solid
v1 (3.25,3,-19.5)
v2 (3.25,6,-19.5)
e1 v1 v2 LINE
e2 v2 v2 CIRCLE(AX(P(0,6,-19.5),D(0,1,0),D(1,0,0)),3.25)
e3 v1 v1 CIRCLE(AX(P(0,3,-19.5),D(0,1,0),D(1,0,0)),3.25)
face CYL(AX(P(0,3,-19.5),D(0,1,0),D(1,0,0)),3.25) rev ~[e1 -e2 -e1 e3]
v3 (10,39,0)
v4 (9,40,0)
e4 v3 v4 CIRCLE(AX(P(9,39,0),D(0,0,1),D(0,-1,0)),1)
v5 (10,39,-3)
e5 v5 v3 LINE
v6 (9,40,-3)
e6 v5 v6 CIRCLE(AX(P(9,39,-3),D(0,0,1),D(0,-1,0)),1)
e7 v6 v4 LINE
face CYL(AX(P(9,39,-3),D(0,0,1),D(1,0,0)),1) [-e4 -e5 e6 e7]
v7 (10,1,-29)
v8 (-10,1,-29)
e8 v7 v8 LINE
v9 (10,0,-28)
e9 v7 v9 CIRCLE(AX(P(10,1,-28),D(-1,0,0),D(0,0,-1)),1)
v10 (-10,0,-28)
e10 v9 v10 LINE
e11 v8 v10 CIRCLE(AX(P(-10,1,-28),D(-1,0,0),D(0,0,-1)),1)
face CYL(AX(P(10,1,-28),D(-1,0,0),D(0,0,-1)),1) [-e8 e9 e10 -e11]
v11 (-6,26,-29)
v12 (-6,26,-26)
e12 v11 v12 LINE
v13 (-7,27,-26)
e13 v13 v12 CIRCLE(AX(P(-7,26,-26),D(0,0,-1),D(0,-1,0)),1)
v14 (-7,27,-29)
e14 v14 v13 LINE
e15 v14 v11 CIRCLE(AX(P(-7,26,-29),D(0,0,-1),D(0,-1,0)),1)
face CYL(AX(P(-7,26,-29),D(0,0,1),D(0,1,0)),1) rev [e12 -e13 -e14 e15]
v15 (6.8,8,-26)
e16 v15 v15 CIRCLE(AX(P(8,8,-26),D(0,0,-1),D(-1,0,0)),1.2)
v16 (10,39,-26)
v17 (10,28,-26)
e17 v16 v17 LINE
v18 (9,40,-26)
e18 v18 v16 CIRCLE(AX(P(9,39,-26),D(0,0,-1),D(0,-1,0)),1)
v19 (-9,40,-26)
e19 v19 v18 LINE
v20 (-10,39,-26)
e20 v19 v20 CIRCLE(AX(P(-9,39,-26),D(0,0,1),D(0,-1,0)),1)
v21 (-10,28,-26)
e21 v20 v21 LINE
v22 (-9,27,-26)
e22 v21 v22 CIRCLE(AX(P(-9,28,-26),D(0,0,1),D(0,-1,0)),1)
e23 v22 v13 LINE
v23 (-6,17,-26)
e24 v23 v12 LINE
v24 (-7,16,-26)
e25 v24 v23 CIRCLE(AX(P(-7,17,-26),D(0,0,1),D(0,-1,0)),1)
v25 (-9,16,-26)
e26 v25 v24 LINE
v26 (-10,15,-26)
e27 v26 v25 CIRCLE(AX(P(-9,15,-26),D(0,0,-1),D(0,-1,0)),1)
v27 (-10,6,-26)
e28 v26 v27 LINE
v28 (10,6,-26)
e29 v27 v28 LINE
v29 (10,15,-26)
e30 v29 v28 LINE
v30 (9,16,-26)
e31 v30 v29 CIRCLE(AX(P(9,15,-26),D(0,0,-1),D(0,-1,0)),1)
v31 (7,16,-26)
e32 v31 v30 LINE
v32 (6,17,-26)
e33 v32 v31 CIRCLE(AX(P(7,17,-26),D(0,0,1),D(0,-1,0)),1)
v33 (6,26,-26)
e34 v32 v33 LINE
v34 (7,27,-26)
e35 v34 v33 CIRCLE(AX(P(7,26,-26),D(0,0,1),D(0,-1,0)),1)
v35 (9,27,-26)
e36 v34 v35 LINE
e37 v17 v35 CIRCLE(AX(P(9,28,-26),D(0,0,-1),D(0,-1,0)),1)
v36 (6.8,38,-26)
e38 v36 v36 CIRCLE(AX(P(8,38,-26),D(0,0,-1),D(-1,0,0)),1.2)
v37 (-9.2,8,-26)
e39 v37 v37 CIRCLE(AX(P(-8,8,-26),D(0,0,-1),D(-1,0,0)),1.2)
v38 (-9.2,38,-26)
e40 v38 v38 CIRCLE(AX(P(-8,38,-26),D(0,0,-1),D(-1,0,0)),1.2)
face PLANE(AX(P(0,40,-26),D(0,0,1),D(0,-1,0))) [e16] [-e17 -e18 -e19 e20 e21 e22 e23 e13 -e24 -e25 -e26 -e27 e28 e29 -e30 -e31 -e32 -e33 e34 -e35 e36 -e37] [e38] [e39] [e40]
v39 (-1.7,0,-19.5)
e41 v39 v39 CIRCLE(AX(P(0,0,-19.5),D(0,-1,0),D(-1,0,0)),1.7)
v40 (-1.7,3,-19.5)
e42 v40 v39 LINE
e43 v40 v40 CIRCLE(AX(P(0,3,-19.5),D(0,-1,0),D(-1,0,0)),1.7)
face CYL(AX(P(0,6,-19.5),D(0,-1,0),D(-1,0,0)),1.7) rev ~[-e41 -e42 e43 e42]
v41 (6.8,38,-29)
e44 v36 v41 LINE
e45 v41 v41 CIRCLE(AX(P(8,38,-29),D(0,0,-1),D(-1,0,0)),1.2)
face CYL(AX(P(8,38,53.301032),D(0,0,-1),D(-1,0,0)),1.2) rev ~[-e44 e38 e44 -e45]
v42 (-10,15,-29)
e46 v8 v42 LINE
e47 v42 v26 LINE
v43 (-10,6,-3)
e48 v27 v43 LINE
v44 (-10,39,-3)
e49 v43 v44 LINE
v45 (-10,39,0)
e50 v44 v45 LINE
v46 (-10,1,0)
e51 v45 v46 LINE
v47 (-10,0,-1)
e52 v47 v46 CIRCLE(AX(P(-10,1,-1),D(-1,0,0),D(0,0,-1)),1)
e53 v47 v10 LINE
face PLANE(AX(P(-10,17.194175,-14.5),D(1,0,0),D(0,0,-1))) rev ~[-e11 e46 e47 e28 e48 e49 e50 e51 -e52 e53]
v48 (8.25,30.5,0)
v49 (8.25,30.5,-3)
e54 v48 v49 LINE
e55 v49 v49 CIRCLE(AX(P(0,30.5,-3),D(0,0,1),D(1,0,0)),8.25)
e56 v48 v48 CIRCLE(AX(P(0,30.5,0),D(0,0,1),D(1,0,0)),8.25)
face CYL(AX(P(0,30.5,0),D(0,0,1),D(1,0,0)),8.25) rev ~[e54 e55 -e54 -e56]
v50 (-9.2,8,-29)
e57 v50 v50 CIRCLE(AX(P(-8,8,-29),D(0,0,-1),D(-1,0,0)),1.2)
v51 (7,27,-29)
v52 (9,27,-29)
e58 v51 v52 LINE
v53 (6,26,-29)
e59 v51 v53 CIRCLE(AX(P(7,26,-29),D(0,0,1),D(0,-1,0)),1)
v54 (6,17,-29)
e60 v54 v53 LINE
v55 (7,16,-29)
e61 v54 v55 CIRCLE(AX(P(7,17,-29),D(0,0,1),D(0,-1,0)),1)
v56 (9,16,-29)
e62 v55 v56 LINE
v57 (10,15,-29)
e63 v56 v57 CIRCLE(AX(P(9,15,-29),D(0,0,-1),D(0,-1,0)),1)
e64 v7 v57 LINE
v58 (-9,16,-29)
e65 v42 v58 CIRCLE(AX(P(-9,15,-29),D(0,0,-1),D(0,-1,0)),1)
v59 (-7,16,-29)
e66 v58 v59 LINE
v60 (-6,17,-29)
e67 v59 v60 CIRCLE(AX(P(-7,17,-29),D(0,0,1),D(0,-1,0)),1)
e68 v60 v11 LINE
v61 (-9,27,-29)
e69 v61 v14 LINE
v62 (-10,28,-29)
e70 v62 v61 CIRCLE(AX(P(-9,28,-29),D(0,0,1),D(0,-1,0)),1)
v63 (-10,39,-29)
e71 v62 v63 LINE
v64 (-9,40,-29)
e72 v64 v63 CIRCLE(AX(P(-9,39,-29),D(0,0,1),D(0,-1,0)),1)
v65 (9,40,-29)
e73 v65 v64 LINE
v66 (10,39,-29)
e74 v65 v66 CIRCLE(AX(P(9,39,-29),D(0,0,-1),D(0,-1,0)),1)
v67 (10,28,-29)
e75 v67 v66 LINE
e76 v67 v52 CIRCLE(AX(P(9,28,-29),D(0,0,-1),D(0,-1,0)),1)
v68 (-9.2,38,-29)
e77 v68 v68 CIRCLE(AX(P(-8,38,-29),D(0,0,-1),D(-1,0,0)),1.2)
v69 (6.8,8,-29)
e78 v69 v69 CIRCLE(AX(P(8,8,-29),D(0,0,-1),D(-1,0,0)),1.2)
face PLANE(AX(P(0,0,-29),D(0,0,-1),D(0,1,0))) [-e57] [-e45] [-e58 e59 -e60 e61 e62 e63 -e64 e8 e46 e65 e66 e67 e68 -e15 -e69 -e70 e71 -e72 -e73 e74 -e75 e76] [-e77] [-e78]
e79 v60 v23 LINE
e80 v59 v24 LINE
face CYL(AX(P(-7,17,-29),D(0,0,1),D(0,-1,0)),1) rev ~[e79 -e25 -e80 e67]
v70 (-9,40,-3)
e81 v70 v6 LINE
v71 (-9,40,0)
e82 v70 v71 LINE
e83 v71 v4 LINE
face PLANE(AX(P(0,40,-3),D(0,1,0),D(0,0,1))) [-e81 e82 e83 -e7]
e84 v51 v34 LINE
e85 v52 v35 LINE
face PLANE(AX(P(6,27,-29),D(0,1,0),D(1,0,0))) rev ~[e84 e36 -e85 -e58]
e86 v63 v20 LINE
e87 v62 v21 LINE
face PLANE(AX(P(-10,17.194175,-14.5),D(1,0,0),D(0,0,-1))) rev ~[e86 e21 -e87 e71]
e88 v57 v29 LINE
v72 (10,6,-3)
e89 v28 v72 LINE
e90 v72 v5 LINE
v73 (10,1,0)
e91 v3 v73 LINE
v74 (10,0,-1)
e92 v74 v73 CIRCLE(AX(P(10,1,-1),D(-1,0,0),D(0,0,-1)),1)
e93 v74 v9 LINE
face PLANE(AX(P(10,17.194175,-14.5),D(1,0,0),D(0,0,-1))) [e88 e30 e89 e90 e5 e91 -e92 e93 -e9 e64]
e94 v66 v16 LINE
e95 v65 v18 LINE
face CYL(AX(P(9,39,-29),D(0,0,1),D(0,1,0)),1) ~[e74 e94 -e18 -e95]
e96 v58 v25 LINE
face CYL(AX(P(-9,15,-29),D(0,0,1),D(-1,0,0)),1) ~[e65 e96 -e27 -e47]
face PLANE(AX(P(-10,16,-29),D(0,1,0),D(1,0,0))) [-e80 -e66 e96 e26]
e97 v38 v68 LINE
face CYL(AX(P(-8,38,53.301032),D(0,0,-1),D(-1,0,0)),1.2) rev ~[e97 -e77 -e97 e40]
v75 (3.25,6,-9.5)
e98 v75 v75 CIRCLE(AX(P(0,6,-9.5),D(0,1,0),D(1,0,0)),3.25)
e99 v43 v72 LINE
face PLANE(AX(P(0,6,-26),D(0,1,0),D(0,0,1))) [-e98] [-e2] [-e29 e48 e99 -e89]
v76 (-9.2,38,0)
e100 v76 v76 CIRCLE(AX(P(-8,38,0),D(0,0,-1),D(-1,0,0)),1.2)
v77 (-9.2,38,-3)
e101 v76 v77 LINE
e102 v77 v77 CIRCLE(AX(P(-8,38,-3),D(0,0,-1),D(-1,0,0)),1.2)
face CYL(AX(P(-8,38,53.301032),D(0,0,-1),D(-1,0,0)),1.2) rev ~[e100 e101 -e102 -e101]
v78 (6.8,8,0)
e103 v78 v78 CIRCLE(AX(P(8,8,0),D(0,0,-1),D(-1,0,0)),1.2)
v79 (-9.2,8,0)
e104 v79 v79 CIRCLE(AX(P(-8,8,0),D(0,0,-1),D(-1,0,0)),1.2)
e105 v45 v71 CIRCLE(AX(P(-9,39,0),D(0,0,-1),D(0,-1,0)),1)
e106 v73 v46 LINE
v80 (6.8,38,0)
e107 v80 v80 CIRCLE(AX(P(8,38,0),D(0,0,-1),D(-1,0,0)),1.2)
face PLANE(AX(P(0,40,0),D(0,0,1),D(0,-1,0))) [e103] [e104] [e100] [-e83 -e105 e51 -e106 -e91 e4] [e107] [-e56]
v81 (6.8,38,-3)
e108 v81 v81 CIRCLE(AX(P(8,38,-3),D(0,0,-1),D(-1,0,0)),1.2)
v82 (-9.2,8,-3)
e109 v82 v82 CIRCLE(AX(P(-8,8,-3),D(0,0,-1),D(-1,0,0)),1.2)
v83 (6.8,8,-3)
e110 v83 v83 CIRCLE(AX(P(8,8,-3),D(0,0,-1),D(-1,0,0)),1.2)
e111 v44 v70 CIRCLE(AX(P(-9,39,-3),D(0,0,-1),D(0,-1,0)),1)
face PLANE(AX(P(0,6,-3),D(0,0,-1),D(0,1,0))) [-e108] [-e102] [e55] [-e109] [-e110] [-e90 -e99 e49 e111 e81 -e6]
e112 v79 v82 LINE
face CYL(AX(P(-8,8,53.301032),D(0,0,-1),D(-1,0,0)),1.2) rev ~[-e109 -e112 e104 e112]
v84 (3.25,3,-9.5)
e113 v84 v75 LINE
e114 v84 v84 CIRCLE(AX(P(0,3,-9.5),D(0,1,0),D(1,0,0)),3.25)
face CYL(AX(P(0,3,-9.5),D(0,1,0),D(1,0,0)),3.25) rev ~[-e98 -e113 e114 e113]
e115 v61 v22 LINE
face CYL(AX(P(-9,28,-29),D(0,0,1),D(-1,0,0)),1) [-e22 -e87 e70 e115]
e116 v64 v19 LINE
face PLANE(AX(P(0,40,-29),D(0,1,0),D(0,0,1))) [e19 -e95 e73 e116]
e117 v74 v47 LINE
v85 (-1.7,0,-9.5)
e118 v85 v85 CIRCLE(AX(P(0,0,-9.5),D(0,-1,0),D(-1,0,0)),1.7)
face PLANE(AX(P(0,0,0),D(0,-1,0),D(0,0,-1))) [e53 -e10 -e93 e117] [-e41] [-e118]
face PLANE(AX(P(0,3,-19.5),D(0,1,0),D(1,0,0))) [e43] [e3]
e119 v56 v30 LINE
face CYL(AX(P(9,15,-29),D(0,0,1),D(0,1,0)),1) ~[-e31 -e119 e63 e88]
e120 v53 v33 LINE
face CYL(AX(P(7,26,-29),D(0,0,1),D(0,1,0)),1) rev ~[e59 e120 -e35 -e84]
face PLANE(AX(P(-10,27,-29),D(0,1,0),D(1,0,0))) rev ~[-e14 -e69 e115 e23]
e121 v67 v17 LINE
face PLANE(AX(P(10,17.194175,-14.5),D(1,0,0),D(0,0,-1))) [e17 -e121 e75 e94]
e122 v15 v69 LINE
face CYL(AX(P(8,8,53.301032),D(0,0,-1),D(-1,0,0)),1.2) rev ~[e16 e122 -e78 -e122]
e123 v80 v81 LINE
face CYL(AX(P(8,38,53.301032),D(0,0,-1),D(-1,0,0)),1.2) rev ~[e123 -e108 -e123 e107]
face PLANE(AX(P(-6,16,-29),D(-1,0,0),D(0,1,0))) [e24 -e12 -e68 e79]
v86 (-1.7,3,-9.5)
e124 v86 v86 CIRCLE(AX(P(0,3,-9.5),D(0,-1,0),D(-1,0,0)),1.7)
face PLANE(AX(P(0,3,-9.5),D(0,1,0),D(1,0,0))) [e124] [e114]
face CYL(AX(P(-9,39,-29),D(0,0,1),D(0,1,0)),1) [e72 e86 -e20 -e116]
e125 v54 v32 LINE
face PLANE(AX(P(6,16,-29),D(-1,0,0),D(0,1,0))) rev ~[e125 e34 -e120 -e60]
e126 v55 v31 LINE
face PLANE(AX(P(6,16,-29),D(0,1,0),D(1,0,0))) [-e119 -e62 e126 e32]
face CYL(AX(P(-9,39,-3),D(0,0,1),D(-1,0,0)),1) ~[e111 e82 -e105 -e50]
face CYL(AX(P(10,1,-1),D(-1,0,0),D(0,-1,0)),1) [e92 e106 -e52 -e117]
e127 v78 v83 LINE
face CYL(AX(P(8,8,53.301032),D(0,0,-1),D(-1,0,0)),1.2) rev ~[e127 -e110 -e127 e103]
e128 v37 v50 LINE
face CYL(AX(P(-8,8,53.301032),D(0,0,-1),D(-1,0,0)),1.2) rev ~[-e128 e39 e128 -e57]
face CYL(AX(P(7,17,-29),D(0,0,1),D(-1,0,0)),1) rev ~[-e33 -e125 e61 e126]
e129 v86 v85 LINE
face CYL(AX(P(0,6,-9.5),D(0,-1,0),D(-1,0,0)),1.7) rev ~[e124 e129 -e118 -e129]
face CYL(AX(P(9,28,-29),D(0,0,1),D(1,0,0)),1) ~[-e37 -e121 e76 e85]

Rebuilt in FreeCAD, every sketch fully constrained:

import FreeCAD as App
import Part
import Sketcher
from FreeCAD import Vector
Q = App.Units.Quantity


def edges_at(feature, points):
    """Names of the edges that pass closest to the given points."""
    edges = feature.Shape.Edges
    near = lambda p: min(range(len(edges)), key=lambda i: edges[i].distToShape(Part.Vertex(*p))[0])
    return sorted({f"Edge{near(p) + 1}" for p in points})


def add_polygon(sketch, points):
    """Adds a closed chain of lines whose ends are joined by coincident constraints."""
    first, n = sketch.GeometryCount, len(points)
    for a, b in zip(points, points[1:] + points[:1]):
        sketch.addGeometry(Part.LineSegment(App.Vector(*a, 0), App.Vector(*b, 0)), False)
    for i in range(n):
        sketch.addConstraint(Sketcher.Constraint("Coincident", first + i, 2, first + (i + 1) % n, 1))

doc = App.newDocument("Part")
body = doc.addObject("PartDesign::Body", "Body")

# Sketch on YZ plane
sketch1 = body.newObject("Sketcher::SketchObject", "Sketch")
sketch1.AttachmentSupport = (doc.getObject("YZ_Plane"), [""])
sketch1.MapMode = "FlatFace"
add_polygon(sketch1, [(40, -29), (40, -26), (6, -26), (6, -3), (40, -3), (40, 0), (0, 0), (0, -29)])  # lines 0-7
sketch1.addConstraint(Sketcher.Constraint("Vertical", 0))
sketch1.addConstraint(Sketcher.Constraint("Horizontal", 1))
sketch1.addConstraint(Sketcher.Constraint("Vertical", 2))
sketch1.addConstraint(Sketcher.Constraint("Horizontal", 3))
sketch1.addConstraint(Sketcher.Constraint("Vertical", 4))
sketch1.addConstraint(Sketcher.Constraint("Horizontal", 5))
sketch1.addConstraint(Sketcher.Constraint("Vertical", 6))
sketch1.addConstraint(Sketcher.Constraint("Horizontal", 7))
sketch1.addConstraint(Sketcher.Constraint("Coincident", 5, 2, -1, 1))
sketch1.addConstraint(Sketcher.Constraint("Vertical", 0, 2, 3, 2))
sketch1.addConstraint(Sketcher.Constraint("Equal", 0, 4))
sketch1.addConstraint(Sketcher.Constraint("DistanceX", 1, 2, 1, 1, Q("34 mm")))
sketch1.addConstraint(Sketcher.Constraint("DistanceX", 5, 2, 5, 1, Q("40 mm")))
sketch1.addConstraint(Sketcher.Constraint("DistanceY", 0, 1, 0, 2, Q("3 mm")))
sketch1.addConstraint(Sketcher.Constraint("DistanceY", 2, 1, 2, 2, Q("23 mm")))
pad1 = body.newObject("PartDesign::Pad", "Pad")
pad1.Profile = sketch1
pad1.Length = 20
pad1.Midplane = True

# Sketch on XY plane
sketch2 = body.newObject("Sketcher::SketchObject", "Sketch001")
sketch2.AttachmentSupport = (doc.getObject("XY_Plane"), [""])
sketch2.MapMode = "FlatFace"
sketch2.addGeometry(Part.Circle(Vector(0, 30.5, 0), Vector(0, 0, 1), 8.25), False)
sketch2.addConstraint(Sketcher.Constraint("PointOnObject", 0, 3, -2))
sketch2.addConstraint(Sketcher.Constraint("Diameter", 0, Q("16.5 mm")))
sketch2.addConstraint(Sketcher.Constraint("DistanceY", -1, 1, 0, 3, Q("30.5 mm")))
pocket1 = body.newObject("PartDesign::Pocket", "Pocket")
pocket1.Profile = sketch2
pocket1.Type = "UpToFirst"

# Sketch on XY plane
sketch3 = body.newObject("Sketcher::SketchObject", "Sketch002")
sketch3.AttachmentSupport = (doc.getObject("XY_Plane"), [""])
sketch3.MapMode = "FlatFace"
sketch3.addGeometry(Part.Circle(Vector(-8, 8, 0), Vector(0, 0, 1), 1.2), False)
sketch3.addGeometry(Part.Circle(Vector(8, 8, 0), Vector(0, 0, 1), 1.2), False)
sketch3.addGeometry(Part.Circle(Vector(8, 38, 0), Vector(0, 0, 1), 1.2), False)
sketch3.addGeometry(Part.Circle(Vector(-8, 38, 0), Vector(0, 0, 1), 1.2), False)
sketch3.addConstraint(Sketcher.Constraint("Equal", 0, 1))
sketch3.addConstraint(Sketcher.Constraint("Equal", 1, 2))
sketch3.addConstraint(Sketcher.Constraint("Equal", 2, 3))
sketch3.addConstraint(Sketcher.Constraint("Symmetric", 0, 3, 1, 3, -2))
sketch3.addConstraint(Sketcher.Constraint("Symmetric", 2, 3, 3, 3, -2))
sketch3.addConstraint(Sketcher.Constraint("Vertical", 1, 3, 2, 3))
sketch3.addConstraint(Sketcher.Constraint("Diameter", 0, Q("2.4 mm")))
sketch3.addConstraint(Sketcher.Constraint("DistanceX", 0, 3, -1, 1, Q("8 mm")))
sketch3.addConstraint(Sketcher.Constraint("DistanceY", -1, 1, 0, 3, Q("8 mm")))
sketch3.addConstraint(Sketcher.Constraint("DistanceY", -1, 1, 2, 3, Q("38 mm")))
doc.recompute()
hole = body.newObject("PartDesign::Hole", "Hole")
hole.Profile = sketch3
hole.ThreadType = "None"
hole.Diameter = 2.4
hole.DepthType = "ThroughAll"

# Sketch on XZ plane
sketch4 = body.newObject("Sketcher::SketchObject", "Sketch003")
sketch4.AttachmentSupport = (doc.getObject("XZ_Plane"), [""])
sketch4.MapMode = "FlatFace"
sketch4.AttachmentOffset = App.Placement(Vector(0, 0, -6), App.Rotation())
sketch4.addGeometry(Part.Circle(Vector(0, -19.5, 0), Vector(0, 0, 1), 1.7), False)
sketch4.addGeometry(Part.Circle(Vector(0, -9.5, 0), Vector(0, 0, 1), 1.7), False)
sketch4.addConstraint(Sketcher.Constraint("Equal", 0, 1))
sketch4.addConstraint(Sketcher.Constraint("PointOnObject", 0, 3, -2))
sketch4.addConstraint(Sketcher.Constraint("PointOnObject", 1, 3, -2))
sketch4.addConstraint(Sketcher.Constraint("Diameter", 0, Q("3.4 mm")))
sketch4.addConstraint(Sketcher.Constraint("DistanceY", 0, 3, 1, 3, Q("10 mm")))
sketch4.addConstraint(Sketcher.Constraint("DistanceY", 0, 3, -1, 1, Q("19.5 mm")))
doc.recompute()
hole2 = body.newObject("PartDesign::Hole", "Hole001")
hole2.Profile = sketch4
hole2.ThreadType = "None"
hole2.Diameter = 3.4
hole2.DepthType = "ThroughAll"
hole2.HoleCutType = "Counterbore"
hole2.HoleCutDiameter = 6.5
hole2.HoleCutDepth = 3
hole2.Reversed = True

# Sketch on XY plane
sketch5 = body.newObject("Sketcher::SketchObject", "Sketch004")
sketch5.AttachmentSupport = (doc.getObject("XY_Plane"), [""])
sketch5.MapMode = "FlatFace"
sketch5.AttachmentOffset = App.Placement(Vector(0, 0, -29), App.Rotation())
add_polygon(sketch5, [(6, 27), (6, 16), (10, 16), (10, 27)])  # lines 0-3
sketch5.addConstraint(Sketcher.Constraint("Vertical", 0))
sketch5.addConstraint(Sketcher.Constraint("Horizontal", 1))
sketch5.addConstraint(Sketcher.Constraint("Vertical", 2))
sketch5.addConstraint(Sketcher.Constraint("Horizontal", 3))
sketch5.addConstraint(Sketcher.Constraint("DistanceX", 1, 1, 1, 2, Q("4 mm")))
sketch5.addConstraint(Sketcher.Constraint("DistanceY", 0, 2, 0, 1, Q("11 mm")))
sketch5.addConstraint(Sketcher.Constraint("DistanceX", -1, 1, 0, 2, Q("6 mm")))
sketch5.addConstraint(Sketcher.Constraint("DistanceY", -1, 1, 0, 2, Q("16 mm")))
pocket2 = body.newObject("PartDesign::Pocket", "Pocket001")
pocket2.Profile = sketch5
pocket2.Type = "UpToFirst"
pocket2.Reversed = True

# Sketch on XY plane
sketch6 = body.newObject("Sketcher::SketchObject", "Sketch005")
sketch6.AttachmentSupport = (doc.getObject("XY_Plane"), [""])
sketch6.MapMode = "FlatFace"
sketch6.AttachmentOffset = App.Placement(Vector(0, 0, -29), App.Rotation())
add_polygon(sketch6, [(-10, 27), (-10, 16), (-6, 16), (-6, 27)])  # lines 0-3
sketch6.addConstraint(Sketcher.Constraint("Vertical", 0))
sketch6.addConstraint(Sketcher.Constraint("Horizontal", 1))
sketch6.addConstraint(Sketcher.Constraint("Vertical", 2))
sketch6.addConstraint(Sketcher.Constraint("Horizontal", 3))
sketch6.addConstraint(Sketcher.Constraint("DistanceX", 1, 1, 1, 2, Q("4 mm")))
sketch6.addConstraint(Sketcher.Constraint("DistanceY", 0, 2, 0, 1, Q("11 mm")))
sketch6.addConstraint(Sketcher.Constraint("DistanceX", 0, 2, -1, 1, Q("10 mm")))
sketch6.addConstraint(Sketcher.Constraint("DistanceY", -1, 1, 0, 2, Q("16 mm")))
pocket3 = body.newObject("PartDesign::Pocket", "Pocket002")
pocket3.Profile = sketch6
pocket3.Type = "UpToFirst"
pocket3.Reversed = True
doc.recompute()

fillet = body.newObject("PartDesign::Fillet", "Fillet")
fillet.Base = (pocket3, edges_at(pocket3, [
    (-6, 27, -27.5),
    (-10, 27, -27.5),
    (-10, 16, -27.5),
    (-6, 16, -27.5),
    (-10, 40, -1.5),
    (-10, 40, -27.5),
    (0, 0, -29),
    (0, 0, 0),
    (10, 40, -1.5),
    (10, 40, -27.5),
    (10, 16, -27.5),
    (10, 27, -27.5),
    (6, 27, -27.5),
    (6, 16, -27.5),
]))
fillet.Radius = 1

doc.recompute()
